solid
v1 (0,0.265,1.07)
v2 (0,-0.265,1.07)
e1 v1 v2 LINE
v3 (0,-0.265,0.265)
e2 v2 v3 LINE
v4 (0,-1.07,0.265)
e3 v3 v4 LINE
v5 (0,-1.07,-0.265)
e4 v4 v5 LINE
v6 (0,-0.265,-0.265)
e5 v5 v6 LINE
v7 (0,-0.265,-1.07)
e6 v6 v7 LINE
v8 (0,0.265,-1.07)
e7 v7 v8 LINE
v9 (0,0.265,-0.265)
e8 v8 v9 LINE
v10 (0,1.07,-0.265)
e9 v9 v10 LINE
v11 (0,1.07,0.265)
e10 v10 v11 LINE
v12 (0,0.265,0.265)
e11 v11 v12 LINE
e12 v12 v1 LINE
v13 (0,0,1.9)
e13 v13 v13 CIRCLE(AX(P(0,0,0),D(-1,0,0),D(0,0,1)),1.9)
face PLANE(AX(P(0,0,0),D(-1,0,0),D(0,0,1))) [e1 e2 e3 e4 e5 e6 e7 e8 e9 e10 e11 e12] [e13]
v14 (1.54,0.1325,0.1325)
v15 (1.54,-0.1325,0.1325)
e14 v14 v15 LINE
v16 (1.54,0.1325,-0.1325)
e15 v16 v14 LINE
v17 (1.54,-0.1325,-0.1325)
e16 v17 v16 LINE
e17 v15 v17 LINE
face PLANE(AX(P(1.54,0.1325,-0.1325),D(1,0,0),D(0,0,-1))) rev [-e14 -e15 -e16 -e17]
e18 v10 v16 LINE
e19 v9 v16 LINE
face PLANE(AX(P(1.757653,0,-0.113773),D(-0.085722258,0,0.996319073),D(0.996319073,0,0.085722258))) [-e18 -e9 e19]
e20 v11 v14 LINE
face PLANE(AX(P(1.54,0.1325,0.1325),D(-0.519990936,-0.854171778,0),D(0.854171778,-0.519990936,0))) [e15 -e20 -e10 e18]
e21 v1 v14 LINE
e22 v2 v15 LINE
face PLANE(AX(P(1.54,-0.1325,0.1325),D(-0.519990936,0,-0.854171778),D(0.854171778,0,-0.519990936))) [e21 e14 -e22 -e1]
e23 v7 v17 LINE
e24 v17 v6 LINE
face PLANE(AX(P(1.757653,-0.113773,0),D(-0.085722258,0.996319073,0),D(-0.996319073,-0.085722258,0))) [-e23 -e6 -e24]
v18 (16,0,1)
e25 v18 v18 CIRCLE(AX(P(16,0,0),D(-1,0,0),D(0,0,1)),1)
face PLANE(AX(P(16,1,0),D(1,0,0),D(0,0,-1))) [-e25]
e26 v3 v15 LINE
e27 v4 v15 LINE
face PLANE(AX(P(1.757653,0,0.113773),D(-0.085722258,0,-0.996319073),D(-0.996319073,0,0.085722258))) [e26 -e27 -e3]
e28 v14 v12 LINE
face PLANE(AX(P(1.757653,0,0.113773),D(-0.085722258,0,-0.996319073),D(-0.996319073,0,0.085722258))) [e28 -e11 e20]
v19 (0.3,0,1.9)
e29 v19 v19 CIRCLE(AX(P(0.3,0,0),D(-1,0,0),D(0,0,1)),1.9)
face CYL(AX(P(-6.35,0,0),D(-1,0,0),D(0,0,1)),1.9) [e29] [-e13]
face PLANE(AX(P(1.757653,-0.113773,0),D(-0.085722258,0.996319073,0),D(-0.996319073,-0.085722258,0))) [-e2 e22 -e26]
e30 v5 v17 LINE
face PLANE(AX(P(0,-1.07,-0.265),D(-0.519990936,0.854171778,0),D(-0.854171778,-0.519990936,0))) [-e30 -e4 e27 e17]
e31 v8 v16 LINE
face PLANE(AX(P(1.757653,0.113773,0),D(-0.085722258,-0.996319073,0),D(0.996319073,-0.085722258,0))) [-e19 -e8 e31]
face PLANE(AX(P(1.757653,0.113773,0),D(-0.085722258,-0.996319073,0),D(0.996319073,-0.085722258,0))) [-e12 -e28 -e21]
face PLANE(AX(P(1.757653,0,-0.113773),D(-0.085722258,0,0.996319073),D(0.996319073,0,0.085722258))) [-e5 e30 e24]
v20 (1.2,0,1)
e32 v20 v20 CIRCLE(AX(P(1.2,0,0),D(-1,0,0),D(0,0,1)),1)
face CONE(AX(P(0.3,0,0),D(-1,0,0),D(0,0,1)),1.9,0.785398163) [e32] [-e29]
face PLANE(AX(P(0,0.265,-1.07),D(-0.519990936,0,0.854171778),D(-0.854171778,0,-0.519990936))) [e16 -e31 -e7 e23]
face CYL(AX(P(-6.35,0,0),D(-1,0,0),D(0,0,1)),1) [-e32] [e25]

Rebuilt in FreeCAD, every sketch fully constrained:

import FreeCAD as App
import Part
import Sketcher
Q = App.Units.Quantity


def add_polygon(sketch, points):
    """Adds a closed chain of lines whose ends are joined by coincident constraints."""
    first, n = sketch.GeometryCount, len(points)
    for a, b in zip(points, points[1:] + points[:1]):
        sketch.addGeometry(Part.LineSegment(App.Vector(*a, 0), App.Vector(*b, 0)), False)
    for i in range(n):
        sketch.addConstraint(Sketcher.Constraint("Coincident", first + i, 2, first + (i + 1) % n, 1))

doc = App.newDocument("Part")
body = doc.addObject("PartDesign::Body", "Body")

sketch1 = doc.addObject("Sketcher::SketchObject", "Sketch")
body.addObject(sketch1)
sketch1.AttachmentSupport = (doc.XY_Plane, [""])
sketch1.MapMode = "FlatFace"
add_polygon(sketch1, [(0, 1.9), (0, 0), (16, 0), (16, 1), (1.2, 1), (0.3, 1.9)])
sketch1.addConstraint([
    Sketcher.Constraint("Vertical", 0),
    Sketcher.Constraint("Horizontal", 1),
    Sketcher.Constraint("Vertical", 2),
    Sketcher.Constraint("Horizontal", 3),
    Sketcher.Constraint("Horizontal", 5),
    Sketcher.Constraint("Coincident", 0, 2, -1, 1),
    Sketcher.Constraint("DistanceX", 1, 1, 1, 2, 16.0),
    Sketcher.Constraint("DistanceY", 2, 1, 2, 2, 1.0),
    Sketcher.Constraint("Angle", 4, Q("135 deg")),
    Sketcher.Constraint("DistanceX", 3, 2, 3, 1, 14.8),
    Sketcher.Constraint("DistanceX", 5, 2, 5, 1, 0.3),
])
revolution = doc.addObject("PartDesign::Revolution", "Revolution")
body.addObject(revolution)
revolution.Profile = sketch1
revolution.ReferenceAxis = (sketch1, ["H_Axis"])
revolution.Angle = 360

sketch2 = doc.addObject("Sketcher::SketchObject", "Sketch001")
body.addObject(sketch2)
sketch2.AttachmentSupport = (doc.YZ_Plane, [""])
sketch2.MapMode = "FlatFace"
add_polygon(sketch2, [(1.1, -0.3), (-1.1, -0.3), (-1.1, 0.3), (1.1, 0.3)])
sketch2.addConstraint([
    Sketcher.Constraint("Horizontal", 0),
    Sketcher.Constraint("Vertical", 1),
    Sketcher.Constraint("Horizontal", 2),
    Sketcher.Constraint("Vertical", 3),
    Sketcher.Constraint("Symmetric", 0, 2, 2, 2, -1, 1),
    Sketcher.Constraint("DistanceX", 0, 2, 0, 1, 2.14),
    Sketcher.Constraint("DistanceY", 1, 1, 1, 2, 0.53),
])

sketch3 = doc.addObject("Sketcher::SketchObject", "Sketch002")
body.addObject(sketch3)
sketch3.AttachmentSupport = (doc.YZ_Plane, [""])
sketch3.MapMode = "FlatFace"
sketch3.AttachmentOffset = App.Placement(App.Vector(0, 0, 1.54), App.Rotation())
add_polygon(sketch3, [(0.13, -0.13), (-0.13, -0.13), (-0.13, 0.13), (0.13, 0.13)])
sketch3.addConstraint([
    Sketcher.Constraint("Horizontal", 0),
    Sketcher.Constraint("Vertical", 1),
    Sketcher.Constraint("Horizontal", 2),
    Sketcher.Constraint("Vertical", 3),
    Sketcher.Constraint("Symmetric", 0, 2, 2, 2, -1, 1),
    Sketcher.Constraint("Equal", 2, 1),
    Sketcher.Constraint("DistanceX", 0, 2, 0, 1, 0.265),
])

subtractiveloft = doc.addObject("PartDesign::SubtractiveLoft", "SubtractiveLoft")
body.addObject(subtractiveloft)
subtractiveloft.Profile = sketch2
subtractiveloft.Sections = [sketch3]
doc.recompute()

polarpattern = doc.addObject("PartDesign::PolarPattern", "PolarPattern")
body.addObject(polarpattern)
polarpattern.Originals = [subtractiveloft]
polarpattern.Axis = (doc.X_Axis, [""])
polarpattern.Angle = 90
polarpattern.Occurrences = 2
body.Tip = polarpattern

doc.recompute()
